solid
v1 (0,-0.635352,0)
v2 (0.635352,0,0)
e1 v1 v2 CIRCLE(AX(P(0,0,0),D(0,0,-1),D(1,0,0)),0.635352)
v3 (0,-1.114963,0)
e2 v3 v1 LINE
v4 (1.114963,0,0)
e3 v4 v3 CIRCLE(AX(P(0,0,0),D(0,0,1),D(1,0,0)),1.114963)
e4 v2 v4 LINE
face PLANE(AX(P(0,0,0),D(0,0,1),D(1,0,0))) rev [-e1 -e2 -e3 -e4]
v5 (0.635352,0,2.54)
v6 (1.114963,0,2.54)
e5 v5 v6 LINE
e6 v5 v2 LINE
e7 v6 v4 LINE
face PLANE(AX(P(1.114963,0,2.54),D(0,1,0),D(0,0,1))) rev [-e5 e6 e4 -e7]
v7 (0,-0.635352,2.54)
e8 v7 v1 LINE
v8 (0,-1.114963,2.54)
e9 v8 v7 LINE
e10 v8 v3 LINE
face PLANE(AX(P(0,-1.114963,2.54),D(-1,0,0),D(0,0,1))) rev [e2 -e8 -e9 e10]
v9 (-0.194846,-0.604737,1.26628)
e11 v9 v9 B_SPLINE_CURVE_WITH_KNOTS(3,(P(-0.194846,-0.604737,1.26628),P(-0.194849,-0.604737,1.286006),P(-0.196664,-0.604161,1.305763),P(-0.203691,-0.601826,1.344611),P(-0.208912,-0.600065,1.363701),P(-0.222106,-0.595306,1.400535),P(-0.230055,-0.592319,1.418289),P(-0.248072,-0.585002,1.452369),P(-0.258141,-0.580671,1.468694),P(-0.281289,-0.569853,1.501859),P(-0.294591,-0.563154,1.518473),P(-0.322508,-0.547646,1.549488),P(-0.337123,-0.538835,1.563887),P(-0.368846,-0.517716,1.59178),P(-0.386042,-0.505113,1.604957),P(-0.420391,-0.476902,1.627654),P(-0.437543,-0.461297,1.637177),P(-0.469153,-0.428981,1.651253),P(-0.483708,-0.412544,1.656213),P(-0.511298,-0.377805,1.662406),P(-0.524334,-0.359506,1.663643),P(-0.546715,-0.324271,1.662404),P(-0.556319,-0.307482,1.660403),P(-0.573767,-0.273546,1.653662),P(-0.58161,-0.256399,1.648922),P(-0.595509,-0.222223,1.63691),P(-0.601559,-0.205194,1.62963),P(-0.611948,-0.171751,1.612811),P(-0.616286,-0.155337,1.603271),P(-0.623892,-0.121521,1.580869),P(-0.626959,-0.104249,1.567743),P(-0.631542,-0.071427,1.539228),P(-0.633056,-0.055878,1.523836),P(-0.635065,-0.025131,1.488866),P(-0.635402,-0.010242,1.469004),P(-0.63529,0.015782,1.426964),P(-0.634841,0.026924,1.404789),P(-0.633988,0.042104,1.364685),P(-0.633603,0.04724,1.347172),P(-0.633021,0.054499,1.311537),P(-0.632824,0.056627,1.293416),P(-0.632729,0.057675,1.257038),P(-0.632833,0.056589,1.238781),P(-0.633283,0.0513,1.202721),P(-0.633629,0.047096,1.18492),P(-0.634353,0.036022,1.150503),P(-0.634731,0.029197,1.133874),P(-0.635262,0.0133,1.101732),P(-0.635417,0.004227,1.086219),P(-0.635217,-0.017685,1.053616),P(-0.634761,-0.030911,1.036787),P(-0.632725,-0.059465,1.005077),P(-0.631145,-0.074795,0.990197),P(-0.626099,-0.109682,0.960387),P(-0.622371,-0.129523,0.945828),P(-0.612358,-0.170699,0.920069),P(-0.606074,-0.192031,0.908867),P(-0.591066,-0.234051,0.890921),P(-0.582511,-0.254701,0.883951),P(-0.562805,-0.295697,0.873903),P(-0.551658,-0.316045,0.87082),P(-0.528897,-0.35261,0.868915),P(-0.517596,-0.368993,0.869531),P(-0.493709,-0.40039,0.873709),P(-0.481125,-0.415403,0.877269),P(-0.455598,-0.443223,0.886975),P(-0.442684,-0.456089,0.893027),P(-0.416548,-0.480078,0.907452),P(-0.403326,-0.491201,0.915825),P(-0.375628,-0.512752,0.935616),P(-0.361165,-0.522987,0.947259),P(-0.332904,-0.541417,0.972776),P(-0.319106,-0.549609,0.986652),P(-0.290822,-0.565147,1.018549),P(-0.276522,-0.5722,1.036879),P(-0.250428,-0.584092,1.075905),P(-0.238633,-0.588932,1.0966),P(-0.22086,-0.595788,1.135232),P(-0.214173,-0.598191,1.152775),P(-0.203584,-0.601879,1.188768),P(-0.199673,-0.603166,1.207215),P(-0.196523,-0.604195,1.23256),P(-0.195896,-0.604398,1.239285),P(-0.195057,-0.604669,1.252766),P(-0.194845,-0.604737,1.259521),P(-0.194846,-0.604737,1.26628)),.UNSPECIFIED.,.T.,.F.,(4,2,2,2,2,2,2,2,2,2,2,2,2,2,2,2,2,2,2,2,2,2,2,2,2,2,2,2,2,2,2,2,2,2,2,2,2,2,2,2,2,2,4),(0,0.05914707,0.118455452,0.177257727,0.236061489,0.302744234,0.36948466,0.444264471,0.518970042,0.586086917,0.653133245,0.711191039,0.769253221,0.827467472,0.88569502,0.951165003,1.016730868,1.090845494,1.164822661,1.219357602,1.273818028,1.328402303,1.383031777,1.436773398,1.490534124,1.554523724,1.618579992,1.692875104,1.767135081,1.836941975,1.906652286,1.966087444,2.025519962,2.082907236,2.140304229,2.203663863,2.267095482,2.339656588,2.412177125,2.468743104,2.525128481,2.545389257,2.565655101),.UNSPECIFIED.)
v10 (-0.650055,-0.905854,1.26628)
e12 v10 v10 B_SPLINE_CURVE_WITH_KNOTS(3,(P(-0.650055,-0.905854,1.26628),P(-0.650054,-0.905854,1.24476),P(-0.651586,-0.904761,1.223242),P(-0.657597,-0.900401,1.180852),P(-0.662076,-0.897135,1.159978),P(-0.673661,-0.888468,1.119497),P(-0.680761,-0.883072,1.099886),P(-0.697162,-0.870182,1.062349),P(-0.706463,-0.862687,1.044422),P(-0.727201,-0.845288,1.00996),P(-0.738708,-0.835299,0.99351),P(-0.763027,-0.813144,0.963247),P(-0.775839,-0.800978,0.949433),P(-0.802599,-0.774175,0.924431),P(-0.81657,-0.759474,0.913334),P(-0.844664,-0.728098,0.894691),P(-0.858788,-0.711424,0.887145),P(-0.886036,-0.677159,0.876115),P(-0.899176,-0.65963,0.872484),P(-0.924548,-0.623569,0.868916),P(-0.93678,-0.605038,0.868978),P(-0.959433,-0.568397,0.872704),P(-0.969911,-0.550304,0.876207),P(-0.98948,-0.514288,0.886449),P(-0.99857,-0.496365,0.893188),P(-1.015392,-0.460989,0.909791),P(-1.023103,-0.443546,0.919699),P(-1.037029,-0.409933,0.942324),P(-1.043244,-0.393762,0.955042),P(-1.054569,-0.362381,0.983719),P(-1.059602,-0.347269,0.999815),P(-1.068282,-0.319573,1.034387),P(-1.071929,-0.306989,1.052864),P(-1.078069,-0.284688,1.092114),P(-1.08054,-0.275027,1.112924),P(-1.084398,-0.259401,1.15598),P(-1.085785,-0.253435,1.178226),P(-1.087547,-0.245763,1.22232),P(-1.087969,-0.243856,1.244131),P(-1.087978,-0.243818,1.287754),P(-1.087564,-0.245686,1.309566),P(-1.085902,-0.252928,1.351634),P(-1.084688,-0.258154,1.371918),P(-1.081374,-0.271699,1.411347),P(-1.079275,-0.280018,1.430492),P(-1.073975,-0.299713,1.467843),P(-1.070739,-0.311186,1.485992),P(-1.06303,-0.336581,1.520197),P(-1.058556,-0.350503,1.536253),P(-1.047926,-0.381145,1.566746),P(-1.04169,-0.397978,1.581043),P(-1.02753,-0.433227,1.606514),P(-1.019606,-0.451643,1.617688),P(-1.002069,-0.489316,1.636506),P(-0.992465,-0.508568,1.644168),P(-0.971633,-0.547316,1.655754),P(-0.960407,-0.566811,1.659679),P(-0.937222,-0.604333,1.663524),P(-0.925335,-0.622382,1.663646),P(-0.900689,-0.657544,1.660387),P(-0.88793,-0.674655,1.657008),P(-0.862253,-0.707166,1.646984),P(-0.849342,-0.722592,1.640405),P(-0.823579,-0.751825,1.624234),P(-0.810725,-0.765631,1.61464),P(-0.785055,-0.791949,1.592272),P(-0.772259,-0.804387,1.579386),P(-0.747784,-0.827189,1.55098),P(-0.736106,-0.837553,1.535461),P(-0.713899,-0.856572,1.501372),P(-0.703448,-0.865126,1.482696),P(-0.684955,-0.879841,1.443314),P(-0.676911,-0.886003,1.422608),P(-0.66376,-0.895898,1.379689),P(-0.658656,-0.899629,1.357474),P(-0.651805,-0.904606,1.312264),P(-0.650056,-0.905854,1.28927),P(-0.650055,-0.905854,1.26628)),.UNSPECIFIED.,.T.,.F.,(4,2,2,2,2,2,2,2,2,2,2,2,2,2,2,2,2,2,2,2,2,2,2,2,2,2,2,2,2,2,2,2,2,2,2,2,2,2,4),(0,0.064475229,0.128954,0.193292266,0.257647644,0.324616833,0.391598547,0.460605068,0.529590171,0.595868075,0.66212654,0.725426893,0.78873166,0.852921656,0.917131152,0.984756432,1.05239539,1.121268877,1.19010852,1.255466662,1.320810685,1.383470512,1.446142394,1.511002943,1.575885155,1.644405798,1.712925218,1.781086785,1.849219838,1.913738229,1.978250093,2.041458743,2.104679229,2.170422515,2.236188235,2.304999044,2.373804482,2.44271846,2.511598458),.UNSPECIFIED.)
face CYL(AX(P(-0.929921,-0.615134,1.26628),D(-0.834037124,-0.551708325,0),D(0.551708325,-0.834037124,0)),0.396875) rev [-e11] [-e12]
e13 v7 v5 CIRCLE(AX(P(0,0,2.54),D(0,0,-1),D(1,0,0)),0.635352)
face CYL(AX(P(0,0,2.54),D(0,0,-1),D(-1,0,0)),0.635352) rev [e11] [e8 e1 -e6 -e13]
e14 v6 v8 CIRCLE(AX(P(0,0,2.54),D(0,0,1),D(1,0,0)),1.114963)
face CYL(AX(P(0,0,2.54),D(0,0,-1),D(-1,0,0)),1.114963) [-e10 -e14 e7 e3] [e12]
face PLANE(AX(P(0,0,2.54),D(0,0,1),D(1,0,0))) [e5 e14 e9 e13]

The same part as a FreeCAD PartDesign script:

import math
import FreeCAD as App
import Part
import Sketcher
Q = App.Units.Quantity

doc = App.newDocument("Part")
body = doc.addObject("PartDesign::Body", "Body")

sketch1 = doc.addObject("Sketcher::SketchObject", "Sketch")
body.addObject(sketch1)
sketch1.AttachmentSupport = (doc.XY_Plane, [""])
sketch1.MapMode = "FlatFace"
sketch1.addGeometry([
    Part.LineSegment(App.Vector(0, -1.11, 0), App.Vector(0, -0.64, 0)),
    Part.ArcOfCircle(Part.Circle(App.Vector(0, 0, 0), App.Vector(0, 0, 1), 0.64), math.radians(0), math.radians(270)),
    Part.LineSegment(App.Vector(0.64, 0, 0), App.Vector(1.11, 0, 0)),
    Part.ArcOfCircle(Part.Circle(App.Vector(0, 0, 0), App.Vector(0, 0, 1), 1.11), math.radians(0), math.radians(270)),
], False)
sketch1.addConstraint([
    Sketcher.Constraint("Coincident", 0, 2, 1, 2),
    Sketcher.Constraint("Coincident", 1, 1, 2, 1),
    Sketcher.Constraint("Coincident", 2, 2, 3, 1),
    Sketcher.Constraint("Coincident", 3, 2, 0, 1),
    Sketcher.Constraint("Vertical", 0),
    Sketcher.Constraint("Horizontal", 2),
    Sketcher.Constraint("Coincident", 1, 3, -1, 1),
    Sketcher.Constraint("Coincident", 3, 3, -1, 1),
    Sketcher.Constraint("PointOnObject", 0, 2, -2),
    Sketcher.Constraint("PointOnObject", 1, 1, -1),
    Sketcher.Constraint("Radius", 1, Q("0.635352 mm")),
    Sketcher.Constraint("Radius", 3, Q("1.114963 mm")),
])
pad1 = doc.addObject("PartDesign::Pad", "Pad")
body.addObject(pad1)
pad1.Profile = sketch1
pad1.Length = Q("0.1 in")

sketch2 = doc.addObject("Sketcher::SketchObject", "Sketch001")
body.addObject(sketch2)
sketch2.Placement = App.Placement(App.Vector(-0.929921, -0.615134, 0), App.Rotation(App.Vector(0.551708325, -0.834037124, 0), App.Vector(0, 0, 1), App.Vector(-0.834037124, -0.551708325, 0), "ZXY"))
sketch2.addGeometry(Part.Circle(App.Vector(0, 1.27, 0), App.Vector(0, 0, 1), 0.4), False)
sketch2.addConstraint([
    Sketcher.Constraint("PointOnObject", 0, 3, -2),
    Sketcher.Constraint("Diameter", 0, Q("0.03125 in")),
    Sketcher.Constraint("DistanceY", -1, 1, 0, 3, Q("1.26628 mm")),
])
doc.recompute()
hole = doc.addObject("PartDesign::Hole", "Hole")
body.addObject(hole)
hole.Profile = sketch2
hole.ThreadType = "None"
hole.Diameter = Q("0.03125 in")
hole.DepthType = "Dimension"
hole.Depth = Q("0.05 in")
hole.DrillPoint = "Angled"
hole.DrillPointAngle = 100

doc.recompute()
